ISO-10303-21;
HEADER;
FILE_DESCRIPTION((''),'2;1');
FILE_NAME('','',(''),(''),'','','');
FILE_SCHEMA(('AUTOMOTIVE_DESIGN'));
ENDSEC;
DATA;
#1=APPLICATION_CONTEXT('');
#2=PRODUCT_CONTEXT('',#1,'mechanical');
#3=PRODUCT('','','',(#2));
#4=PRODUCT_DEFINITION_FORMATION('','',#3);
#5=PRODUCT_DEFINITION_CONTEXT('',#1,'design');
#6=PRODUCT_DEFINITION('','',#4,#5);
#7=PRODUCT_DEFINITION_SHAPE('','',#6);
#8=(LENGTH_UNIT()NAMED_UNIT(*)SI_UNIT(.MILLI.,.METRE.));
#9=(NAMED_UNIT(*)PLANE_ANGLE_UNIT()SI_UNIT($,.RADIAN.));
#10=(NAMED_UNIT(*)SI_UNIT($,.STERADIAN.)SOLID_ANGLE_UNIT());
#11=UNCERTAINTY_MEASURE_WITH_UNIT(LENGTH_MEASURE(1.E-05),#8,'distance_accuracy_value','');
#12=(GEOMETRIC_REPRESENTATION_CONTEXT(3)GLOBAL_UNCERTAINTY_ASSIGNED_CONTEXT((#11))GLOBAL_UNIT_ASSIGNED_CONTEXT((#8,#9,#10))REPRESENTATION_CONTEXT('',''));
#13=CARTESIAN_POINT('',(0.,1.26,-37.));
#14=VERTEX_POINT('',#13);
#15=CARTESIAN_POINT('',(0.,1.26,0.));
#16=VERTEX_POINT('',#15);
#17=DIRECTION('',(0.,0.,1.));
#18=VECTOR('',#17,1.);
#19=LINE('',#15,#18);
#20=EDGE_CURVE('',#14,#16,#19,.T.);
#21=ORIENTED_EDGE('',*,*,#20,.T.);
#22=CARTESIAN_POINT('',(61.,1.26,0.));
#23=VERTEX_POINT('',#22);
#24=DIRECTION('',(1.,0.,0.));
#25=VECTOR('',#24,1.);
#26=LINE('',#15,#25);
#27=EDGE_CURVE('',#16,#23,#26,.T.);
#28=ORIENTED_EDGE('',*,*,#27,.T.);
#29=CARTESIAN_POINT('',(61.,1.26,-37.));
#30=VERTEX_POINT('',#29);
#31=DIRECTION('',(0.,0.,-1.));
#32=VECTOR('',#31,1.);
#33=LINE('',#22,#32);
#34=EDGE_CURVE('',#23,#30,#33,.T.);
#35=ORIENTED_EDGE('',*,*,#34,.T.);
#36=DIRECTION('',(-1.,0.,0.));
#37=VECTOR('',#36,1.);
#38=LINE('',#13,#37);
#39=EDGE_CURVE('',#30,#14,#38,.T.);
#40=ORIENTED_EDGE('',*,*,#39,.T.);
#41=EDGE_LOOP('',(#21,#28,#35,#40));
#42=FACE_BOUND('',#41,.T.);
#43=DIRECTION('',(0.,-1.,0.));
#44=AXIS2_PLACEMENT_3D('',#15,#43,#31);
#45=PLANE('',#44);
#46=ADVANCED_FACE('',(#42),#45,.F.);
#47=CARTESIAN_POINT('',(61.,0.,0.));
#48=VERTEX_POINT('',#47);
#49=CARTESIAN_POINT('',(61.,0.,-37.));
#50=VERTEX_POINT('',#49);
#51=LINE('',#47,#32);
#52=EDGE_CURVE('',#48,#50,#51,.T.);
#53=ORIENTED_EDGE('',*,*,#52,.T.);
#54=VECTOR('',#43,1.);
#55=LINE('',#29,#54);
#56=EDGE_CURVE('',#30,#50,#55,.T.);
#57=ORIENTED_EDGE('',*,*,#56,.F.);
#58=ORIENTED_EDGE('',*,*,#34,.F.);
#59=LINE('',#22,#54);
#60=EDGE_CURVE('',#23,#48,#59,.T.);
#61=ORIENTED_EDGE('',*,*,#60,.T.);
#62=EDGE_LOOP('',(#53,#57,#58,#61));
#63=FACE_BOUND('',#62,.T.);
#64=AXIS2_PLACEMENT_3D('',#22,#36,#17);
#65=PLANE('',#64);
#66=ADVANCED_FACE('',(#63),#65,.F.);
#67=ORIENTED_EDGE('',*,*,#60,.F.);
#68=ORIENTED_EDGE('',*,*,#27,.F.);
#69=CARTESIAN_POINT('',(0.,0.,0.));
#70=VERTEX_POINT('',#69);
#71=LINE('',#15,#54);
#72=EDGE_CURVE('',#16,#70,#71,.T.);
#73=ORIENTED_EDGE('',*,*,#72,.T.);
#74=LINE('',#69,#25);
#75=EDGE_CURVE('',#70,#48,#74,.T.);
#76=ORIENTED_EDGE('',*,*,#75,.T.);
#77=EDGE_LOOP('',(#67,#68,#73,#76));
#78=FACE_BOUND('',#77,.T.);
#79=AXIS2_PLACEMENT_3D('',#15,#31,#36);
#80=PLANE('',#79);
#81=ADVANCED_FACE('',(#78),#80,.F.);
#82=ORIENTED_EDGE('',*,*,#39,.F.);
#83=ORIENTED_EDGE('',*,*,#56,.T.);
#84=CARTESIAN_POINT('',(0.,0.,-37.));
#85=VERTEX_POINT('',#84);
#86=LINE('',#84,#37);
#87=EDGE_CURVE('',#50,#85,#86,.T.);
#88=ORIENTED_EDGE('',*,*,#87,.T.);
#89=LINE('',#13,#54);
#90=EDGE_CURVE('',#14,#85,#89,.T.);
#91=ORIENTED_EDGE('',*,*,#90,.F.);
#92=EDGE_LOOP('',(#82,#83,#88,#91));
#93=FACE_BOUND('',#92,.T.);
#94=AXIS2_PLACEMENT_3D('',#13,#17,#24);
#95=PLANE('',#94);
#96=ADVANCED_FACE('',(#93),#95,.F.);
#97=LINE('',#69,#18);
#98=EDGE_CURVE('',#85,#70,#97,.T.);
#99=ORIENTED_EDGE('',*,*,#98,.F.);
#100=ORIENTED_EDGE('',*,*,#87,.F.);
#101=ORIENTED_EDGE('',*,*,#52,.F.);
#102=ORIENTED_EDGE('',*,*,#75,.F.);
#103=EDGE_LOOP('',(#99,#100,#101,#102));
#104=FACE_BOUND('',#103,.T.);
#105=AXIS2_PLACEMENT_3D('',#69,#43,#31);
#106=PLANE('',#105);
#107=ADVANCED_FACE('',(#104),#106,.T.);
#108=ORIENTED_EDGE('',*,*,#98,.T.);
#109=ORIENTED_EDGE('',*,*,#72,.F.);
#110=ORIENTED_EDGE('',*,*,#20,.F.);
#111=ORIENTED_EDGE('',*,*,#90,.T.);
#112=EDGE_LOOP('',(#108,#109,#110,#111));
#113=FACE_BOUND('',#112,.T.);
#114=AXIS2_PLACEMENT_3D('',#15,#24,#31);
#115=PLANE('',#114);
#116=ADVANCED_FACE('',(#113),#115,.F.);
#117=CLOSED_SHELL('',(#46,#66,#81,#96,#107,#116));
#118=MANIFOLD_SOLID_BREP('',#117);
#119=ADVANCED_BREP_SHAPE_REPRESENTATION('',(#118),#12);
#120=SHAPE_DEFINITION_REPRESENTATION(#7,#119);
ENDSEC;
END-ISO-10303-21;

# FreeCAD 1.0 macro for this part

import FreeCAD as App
import Part
import Sketcher
from FreeCAD import Vector
Q = App.Units.Quantity


def add_polygon(sketch, points):
    """Adds a closed chain of lines whose ends are joined by coincident constraints."""
    first, n = sketch.GeometryCount, len(points)
    for a, b in zip(points, points[1:] + points[:1]):
        sketch.addGeometry(Part.LineSegment(App.Vector(*a, 0), App.Vector(*b, 0)), False)
    for i in range(n):
        sketch.addConstraint(Sketcher.Constraint("Coincident", first + i, 2, first + (i + 1) % n, 1))

doc = App.newDocument("Part")
body = doc.addObject("PartDesign::Body", "Body")

# Sketch on XZ plane
sketch1 = body.newObject("Sketcher::SketchObject", "Sketch")
sketch1.AttachmentSupport = (doc.getObject("XZ_Plane"), [""])
sketch1.MapMode = "FlatFace"
add_polygon(sketch1, [(0, -37), (0, 0), (61, 0), (61, -37)])  # lines 0-3
sketch1.addConstraint([
    Sketcher.Constraint("Vertical", 0),
    Sketcher.Constraint("Horizontal", 1),
    Sketcher.Constraint("Vertical", 2),
    Sketcher.Constraint("Horizontal", 3),
    Sketcher.Constraint("Coincident", 0, 2, -1, 1),
    Sketcher.Constraint("DistanceX", 1, 1, 1, 2, Q("61 mm")),
    Sketcher.Constraint("DistanceY", 0, 1, 0, 2, Q("37 mm")),
])
pad1 = body.newObject("PartDesign::Pad", "Pad")
pad1.Profile = sketch1
pad1.Length = 1.26
pad1.Reversed = True

doc.recompute()
